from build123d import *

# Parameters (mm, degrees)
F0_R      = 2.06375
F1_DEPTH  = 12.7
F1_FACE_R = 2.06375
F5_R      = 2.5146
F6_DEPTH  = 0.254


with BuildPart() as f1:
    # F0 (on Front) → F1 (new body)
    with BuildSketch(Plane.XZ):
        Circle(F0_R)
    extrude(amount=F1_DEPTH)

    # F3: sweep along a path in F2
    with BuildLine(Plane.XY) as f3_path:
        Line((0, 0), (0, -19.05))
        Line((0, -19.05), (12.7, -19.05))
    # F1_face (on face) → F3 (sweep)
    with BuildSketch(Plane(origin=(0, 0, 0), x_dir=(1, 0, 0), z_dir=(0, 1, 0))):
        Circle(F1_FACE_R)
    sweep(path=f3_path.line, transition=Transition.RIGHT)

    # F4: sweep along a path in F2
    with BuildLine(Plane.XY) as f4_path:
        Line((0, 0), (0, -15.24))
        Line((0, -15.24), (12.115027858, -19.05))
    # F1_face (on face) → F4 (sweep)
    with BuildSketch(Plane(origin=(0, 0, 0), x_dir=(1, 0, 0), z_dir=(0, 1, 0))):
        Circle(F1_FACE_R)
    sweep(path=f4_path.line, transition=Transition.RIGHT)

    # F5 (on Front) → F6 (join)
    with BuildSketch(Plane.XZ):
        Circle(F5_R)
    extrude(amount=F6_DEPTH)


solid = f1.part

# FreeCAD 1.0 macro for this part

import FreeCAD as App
import Part
import Sketcher
from FreeCAD import Vector
Q = App.Units.Quantity

doc = App.newDocument("Part")
body = doc.addObject("PartDesign::Body", "Body")

# Sketch on XZ plane
sketch1 = doc.addObject("Sketcher::SketchObject", "Sketch")
body.addObject(sketch1)
sketch1.AttachmentSupport = (doc.XZ_Plane, [""])
sketch1.MapMode = "FlatFace"
sketch1.addGeometry(Part.Circle(Vector(0, 0, 0), Vector(0, 0, 1), 2.1), False)
sketch1.addConstraint([
    Sketcher.Constraint("Coincident", 0, 3, -1, 1),
    Sketcher.Constraint("Diameter", 0, Q("0.1625 in")),
])
pad1 = doc.addObject("PartDesign::Pad", "Pad")
body.addObject(pad1)
pad1.Profile = sketch1
pad1.Length = Q("0.5 in")

# Sketch on XZ plane
sketch2 = doc.addObject("Sketcher::SketchObject", "Sketch001")
body.addObject(sketch2)
sketch2.AttachmentSupport = (doc.XZ_Plane, [""])
sketch2.MapMode = "FlatFace"
sketch2.addGeometry(Part.Circle(Vector(0, 0, 0), Vector(0, 0, 1), 2.1), False)
sketch2.addConstraint([
    Sketcher.Constraint("Coincident", 0, 3, -1, 1),
    Sketcher.Constraint("Diameter", 0, Q("0.1625 in")),
])

# Sketch on XY plane
sketch3 = doc.addObject("Sketcher::SketchObject", "Sketch002")
body.addObject(sketch3)
sketch3.AttachmentSupport = (doc.XY_Plane, [""])
sketch3.MapMode = "FlatFace"
sketch3.addGeometry([
    Part.LineSegment(Vector(0, 0, 0), Vector(0, -19, 0)),
    Part.LineSegment(Vector(0, -19, 0), Vector(13, -19, 0)),
], False)
sketch3.addConstraint([
    Sketcher.Constraint("Coincident", 0, 2, 1, 1),
    Sketcher.Constraint("Vertical", 0),
    Sketcher.Constraint("Horizontal", 1),
    Sketcher.Constraint("Coincident", 0, 1, -1, 1),
    Sketcher.Constraint("DistanceX", 1, 1, 1, 2, Q("0.5 in")),
    Sketcher.Constraint("DistanceY", 0, 2, 0, 1, Q("0.75 in")),
])
doc.recompute()

additivepipe = doc.addObject("PartDesign::AdditivePipe", "AdditivePipe")
body.addObject(additivepipe)
additivepipe.Profile = sketch2
additivepipe.Spine = (sketch3, ["Edge1", "Edge2"])
additivepipe.Transition = "Right corner"

# Sketch on XZ plane
sketch4 = doc.addObject("Sketcher::SketchObject", "Sketch003")
body.addObject(sketch4)
sketch4.AttachmentSupport = (doc.XZ_Plane, [""])
sketch4.MapMode = "FlatFace"
sketch4.addGeometry(Part.Circle(Vector(0, 0, 0), Vector(0, 0, 1), 2.1), False)
sketch4.addConstraint([
    Sketcher.Constraint("Coincident", 0, 3, -1, 1),
    Sketcher.Constraint("Diameter", 0, Q("0.1625 in")),
])

# Sketch on XY plane
sketch5 = doc.addObject("Sketcher::SketchObject", "Sketch004")
body.addObject(sketch5)
sketch5.AttachmentSupport = (doc.XY_Plane, [""])
sketch5.MapMode = "FlatFace"
sketch5.addGeometry([
    Part.LineSegment(Vector(0, 0, 0), Vector(0, -15, 0)),
    Part.LineSegment(Vector(0, -15, 0), Vector(12, -19, 0)),
], False)
sketch5.addConstraint([
    Sketcher.Constraint("Coincident", 0, 2, 1, 1),
    Sketcher.Constraint("Vertical", 0),
    Sketcher.Constraint("Coincident", 0, 1, -1, 1),
    Sketcher.Constraint("DistanceY", 0, 2, 0, 1, Q("0.6 in")),
    Sketcher.Constraint("Distance", 1, Q("0.5 in")),
    Sketcher.Constraint("DistanceY", 1, 2, -1, 1, Q("0.75 in")),
])
doc.recompute()

additivepipe2 = doc.addObject("PartDesign::AdditivePipe", "AdditivePipe001")
body.addObject(additivepipe2)
additivepipe2.Profile = sketch4
additivepipe2.Spine = (sketch5, ["Edge1", "Edge2"])
additivepipe2.Transition = "Right corner"

# Sketch on XZ plane
sketch6 = doc.addObject("Sketcher::SketchObject", "Sketch005")
body.addObject(sketch6)
sketch6.AttachmentSupport = (doc.XZ_Plane, [""])
sketch6.MapMode = "FlatFace"
sketch6.addGeometry(Part.Circle(Vector(0, 0, 0), Vector(0, 0, 1), 2.5), False)
sketch6.addConstraint([
    Sketcher.Constraint("Coincident", 0, 3, -1, 1),
    Sketcher.Constraint("Diameter", 0, Q("0.198 in")),
])
pad2 = doc.addObject("PartDesign::Pad", "Pad001")
body.addObject(pad2)
pad2.Profile = sketch6
pad2.Length = Q("0.01 in")

doc.recompute()
